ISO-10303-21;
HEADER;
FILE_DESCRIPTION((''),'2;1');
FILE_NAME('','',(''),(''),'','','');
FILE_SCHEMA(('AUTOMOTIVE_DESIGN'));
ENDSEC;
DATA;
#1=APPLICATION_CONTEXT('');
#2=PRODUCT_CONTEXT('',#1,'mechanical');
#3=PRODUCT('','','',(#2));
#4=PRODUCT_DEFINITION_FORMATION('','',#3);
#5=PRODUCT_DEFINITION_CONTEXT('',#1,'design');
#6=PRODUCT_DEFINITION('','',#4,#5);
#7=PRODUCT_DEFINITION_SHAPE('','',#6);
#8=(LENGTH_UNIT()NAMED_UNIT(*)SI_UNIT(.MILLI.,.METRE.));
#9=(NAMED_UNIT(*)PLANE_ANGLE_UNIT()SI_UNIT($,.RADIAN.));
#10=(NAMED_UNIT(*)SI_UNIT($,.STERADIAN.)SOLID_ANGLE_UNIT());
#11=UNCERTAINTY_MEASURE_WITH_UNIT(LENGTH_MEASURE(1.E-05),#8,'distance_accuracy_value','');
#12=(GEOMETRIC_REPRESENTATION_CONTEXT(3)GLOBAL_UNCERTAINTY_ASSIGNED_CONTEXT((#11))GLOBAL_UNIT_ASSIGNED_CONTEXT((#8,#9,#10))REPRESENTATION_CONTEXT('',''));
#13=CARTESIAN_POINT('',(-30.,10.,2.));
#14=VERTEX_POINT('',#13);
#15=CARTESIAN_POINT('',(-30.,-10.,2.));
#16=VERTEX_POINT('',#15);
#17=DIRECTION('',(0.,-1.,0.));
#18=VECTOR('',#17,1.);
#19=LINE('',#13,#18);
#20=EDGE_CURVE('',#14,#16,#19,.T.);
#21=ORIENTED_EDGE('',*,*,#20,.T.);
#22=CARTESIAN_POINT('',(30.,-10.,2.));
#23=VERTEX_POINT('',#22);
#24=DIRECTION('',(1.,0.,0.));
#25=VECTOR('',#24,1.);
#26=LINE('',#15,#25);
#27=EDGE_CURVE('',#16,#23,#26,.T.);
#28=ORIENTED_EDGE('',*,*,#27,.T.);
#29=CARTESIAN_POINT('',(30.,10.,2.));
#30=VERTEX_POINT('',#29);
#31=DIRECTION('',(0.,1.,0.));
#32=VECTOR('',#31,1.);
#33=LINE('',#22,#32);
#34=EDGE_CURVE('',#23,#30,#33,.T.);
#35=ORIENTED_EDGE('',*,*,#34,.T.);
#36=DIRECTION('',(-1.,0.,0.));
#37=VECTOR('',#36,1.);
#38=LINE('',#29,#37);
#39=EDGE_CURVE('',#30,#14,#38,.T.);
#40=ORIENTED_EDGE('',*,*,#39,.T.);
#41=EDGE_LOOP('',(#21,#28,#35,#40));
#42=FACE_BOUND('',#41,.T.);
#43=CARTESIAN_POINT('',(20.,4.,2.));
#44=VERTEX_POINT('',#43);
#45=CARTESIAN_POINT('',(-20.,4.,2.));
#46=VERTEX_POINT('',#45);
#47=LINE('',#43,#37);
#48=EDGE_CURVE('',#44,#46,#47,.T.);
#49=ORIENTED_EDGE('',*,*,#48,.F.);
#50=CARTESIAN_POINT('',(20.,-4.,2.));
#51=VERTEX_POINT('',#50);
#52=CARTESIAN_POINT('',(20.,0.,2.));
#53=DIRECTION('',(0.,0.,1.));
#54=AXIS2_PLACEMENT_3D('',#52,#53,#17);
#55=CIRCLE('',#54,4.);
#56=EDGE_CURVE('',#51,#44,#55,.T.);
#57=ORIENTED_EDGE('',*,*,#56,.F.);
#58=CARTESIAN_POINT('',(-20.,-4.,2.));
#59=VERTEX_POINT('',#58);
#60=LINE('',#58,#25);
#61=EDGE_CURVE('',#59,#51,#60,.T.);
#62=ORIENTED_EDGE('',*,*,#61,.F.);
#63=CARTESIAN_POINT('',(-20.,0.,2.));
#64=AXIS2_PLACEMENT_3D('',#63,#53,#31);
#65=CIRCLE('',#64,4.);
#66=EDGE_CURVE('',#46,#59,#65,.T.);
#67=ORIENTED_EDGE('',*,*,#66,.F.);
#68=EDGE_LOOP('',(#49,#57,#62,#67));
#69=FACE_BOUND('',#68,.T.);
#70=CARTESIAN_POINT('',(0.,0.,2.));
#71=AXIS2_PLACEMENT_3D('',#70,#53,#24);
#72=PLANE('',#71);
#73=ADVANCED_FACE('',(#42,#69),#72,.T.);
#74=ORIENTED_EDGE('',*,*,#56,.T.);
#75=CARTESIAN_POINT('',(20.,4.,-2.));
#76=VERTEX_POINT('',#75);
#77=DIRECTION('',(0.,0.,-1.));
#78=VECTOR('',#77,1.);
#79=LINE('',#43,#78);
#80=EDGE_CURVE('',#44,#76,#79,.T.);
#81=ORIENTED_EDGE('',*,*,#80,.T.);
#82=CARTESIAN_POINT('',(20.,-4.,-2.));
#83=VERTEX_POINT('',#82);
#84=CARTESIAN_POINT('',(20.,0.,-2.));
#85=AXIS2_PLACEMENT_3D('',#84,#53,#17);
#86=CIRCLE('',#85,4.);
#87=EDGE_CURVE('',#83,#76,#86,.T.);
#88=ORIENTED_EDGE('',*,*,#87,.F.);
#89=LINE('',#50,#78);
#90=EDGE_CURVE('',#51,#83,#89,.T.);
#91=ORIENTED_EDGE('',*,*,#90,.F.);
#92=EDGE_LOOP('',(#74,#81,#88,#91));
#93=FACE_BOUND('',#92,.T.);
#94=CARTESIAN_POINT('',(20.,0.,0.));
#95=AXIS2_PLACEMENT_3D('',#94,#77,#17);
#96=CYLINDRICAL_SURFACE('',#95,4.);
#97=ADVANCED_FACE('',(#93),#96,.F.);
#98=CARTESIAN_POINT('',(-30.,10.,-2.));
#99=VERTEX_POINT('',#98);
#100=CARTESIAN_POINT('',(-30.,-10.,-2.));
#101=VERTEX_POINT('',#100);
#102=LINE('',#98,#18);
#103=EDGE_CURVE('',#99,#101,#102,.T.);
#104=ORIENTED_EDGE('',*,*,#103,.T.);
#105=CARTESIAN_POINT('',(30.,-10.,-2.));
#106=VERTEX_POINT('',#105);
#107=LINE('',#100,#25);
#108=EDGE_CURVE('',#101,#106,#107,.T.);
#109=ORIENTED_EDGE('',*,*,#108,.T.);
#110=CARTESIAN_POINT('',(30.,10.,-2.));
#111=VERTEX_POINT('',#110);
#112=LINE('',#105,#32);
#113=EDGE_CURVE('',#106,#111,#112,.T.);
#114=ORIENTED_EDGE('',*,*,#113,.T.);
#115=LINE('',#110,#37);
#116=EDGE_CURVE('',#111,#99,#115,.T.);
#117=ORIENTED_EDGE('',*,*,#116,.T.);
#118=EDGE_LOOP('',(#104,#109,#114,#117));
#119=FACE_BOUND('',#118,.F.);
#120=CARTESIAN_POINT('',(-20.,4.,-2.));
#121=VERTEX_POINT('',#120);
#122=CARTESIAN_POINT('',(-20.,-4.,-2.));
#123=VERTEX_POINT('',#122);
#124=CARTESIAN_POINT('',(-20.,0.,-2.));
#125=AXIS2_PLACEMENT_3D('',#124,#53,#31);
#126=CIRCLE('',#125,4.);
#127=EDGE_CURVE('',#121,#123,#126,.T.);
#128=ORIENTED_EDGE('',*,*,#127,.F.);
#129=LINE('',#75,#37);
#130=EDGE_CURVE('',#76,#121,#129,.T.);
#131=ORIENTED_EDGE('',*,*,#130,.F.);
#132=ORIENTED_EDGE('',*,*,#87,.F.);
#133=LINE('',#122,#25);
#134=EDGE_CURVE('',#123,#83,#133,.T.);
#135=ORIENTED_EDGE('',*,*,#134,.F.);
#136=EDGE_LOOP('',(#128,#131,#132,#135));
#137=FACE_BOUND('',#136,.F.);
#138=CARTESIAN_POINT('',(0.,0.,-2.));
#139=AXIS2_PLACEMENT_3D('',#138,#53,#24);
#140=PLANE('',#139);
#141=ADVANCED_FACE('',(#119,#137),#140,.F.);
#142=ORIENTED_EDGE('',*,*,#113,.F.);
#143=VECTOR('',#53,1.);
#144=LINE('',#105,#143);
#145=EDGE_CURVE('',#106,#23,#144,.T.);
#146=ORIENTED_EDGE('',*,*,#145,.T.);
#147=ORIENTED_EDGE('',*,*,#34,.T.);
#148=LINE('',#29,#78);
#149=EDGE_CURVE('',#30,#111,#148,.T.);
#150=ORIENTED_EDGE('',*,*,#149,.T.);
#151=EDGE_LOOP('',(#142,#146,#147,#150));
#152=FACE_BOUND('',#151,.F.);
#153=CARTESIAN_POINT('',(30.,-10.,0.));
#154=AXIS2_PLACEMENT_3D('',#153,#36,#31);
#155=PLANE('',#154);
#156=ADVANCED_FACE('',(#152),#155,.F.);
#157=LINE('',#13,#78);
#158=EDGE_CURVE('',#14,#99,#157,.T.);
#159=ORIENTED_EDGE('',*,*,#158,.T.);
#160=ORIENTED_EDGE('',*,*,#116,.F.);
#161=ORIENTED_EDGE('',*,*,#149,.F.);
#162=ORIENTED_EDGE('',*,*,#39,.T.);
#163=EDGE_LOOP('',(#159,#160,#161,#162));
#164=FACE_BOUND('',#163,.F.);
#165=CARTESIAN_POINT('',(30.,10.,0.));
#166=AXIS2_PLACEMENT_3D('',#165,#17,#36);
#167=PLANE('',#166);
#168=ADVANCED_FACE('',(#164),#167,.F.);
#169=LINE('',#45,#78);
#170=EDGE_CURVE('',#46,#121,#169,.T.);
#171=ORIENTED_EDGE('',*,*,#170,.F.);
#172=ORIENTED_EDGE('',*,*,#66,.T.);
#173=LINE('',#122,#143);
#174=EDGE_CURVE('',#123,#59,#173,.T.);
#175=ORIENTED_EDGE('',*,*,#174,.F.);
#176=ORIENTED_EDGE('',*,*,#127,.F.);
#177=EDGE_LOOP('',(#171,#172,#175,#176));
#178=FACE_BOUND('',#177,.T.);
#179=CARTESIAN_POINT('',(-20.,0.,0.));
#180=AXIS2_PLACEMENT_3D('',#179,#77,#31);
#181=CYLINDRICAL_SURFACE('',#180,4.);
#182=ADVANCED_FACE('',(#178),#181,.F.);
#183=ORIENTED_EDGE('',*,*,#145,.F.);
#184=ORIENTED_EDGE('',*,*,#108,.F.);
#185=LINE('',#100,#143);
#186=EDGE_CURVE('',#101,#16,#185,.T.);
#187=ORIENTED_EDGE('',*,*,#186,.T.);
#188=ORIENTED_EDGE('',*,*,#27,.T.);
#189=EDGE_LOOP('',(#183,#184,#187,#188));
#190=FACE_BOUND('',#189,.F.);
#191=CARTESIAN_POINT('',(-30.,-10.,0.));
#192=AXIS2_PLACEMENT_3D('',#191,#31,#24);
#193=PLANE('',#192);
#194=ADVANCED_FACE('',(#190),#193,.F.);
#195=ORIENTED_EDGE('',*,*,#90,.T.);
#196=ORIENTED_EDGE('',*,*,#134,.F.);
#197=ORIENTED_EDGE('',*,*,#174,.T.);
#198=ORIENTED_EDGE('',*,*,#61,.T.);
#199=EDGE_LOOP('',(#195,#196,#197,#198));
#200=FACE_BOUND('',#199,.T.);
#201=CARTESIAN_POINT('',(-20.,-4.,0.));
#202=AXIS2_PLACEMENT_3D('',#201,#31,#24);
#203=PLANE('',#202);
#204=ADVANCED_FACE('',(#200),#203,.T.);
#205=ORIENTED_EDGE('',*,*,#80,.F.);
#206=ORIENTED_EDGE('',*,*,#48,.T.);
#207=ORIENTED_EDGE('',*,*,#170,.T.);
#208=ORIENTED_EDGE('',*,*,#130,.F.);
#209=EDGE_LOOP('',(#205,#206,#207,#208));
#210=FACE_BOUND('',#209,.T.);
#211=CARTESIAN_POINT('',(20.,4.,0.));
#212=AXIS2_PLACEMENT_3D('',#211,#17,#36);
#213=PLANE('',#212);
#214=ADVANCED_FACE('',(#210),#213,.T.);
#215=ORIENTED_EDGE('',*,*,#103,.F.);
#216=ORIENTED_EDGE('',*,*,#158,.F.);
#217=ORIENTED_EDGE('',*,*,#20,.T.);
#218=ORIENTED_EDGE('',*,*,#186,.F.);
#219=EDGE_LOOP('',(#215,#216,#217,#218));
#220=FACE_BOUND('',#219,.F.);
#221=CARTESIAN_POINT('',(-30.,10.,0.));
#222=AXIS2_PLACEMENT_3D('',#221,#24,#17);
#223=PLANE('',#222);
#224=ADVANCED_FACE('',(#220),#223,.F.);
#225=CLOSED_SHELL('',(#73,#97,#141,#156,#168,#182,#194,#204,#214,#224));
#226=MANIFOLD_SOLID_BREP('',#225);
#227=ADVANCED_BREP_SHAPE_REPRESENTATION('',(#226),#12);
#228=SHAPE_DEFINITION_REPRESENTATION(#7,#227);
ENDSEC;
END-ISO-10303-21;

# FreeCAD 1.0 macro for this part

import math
import FreeCAD as App
import Part
import Sketcher

doc = App.newDocument("Part")
body = doc.addObject("PartDesign::Body", "Body")

# Sketch on XY plane
sketch1 = body.newObject("Sketcher::SketchObject", "Sketch")
sketch1.AttachmentSupport = (doc.getObject("XY_Plane"), [""])
sketch1.MapMode = "FlatFace"
sketch1.addGeometry([
    Part.LineSegment(App.Vector(-30, 10, 0), App.Vector(-30, -10, 0)),  # 0
    Part.LineSegment(App.Vector(-30, -10, 0), App.Vector(30, -10, 0)),  # 1
    Part.LineSegment(App.Vector(30, -10, 0), App.Vector(30, 10, 0)),  # 2
    Part.LineSegment(App.Vector(30, 10, 0), App.Vector(-30, 10, 0)),  # 3
    Part.LineSegment(App.Vector(20, -4, 0), App.Vector(-20, -4, 0)),  # 4
    Part.ArcOfCircle(Part.Circle(App.Vector(-20, 0, 0), App.Vector(0, 0, 1), 4), math.radians(90), math.radians(270)),  # 5
    Part.LineSegment(App.Vector(-20, 4, 0), App.Vector(20, 4, 0)),  # 6
    Part.ArcOfCircle(Part.Circle(App.Vector(20, 0, 0), App.Vector(0, 0, 1), 4), math.radians(-90), math.radians(90)),  # 7
], False)
sketch1.addConstraint([
    Sketcher.Constraint("Coincident", 0, 2, 1, 1),
    Sketcher.Constraint("Coincident", 1, 2, 2, 1),
    Sketcher.Constraint("Coincident", 2, 2, 3, 1),
    Sketcher.Constraint("Coincident", 3, 2, 0, 1),
    Sketcher.Constraint("Tangent", 4, 2, 5, 2),
    Sketcher.Constraint("Tangent", 5, 1, 6, 1),
    Sketcher.Constraint("Tangent", 6, 2, 7, 2),
    Sketcher.Constraint("Tangent", 7, 1, 4, 1),
    Sketcher.Constraint("Vertical", 0),
    Sketcher.Constraint("Horizontal", 1),
    Sketcher.Constraint("Vertical", 2),
    Sketcher.Constraint("Horizontal", 3),
    Sketcher.Constraint("Horizontal", 4),
    Sketcher.Constraint("Horizontal", 6),
    Sketcher.Constraint("Symmetric", 5, 3, 7, 3, -1, 1),
    Sketcher.Constraint("Symmetric", 0, 2, 2, 2, -1, 1),
    Sketcher.Constraint("Radius", 5, 4.0),
    Sketcher.Constraint("DistanceX", 1, 1, 1, 2, 60.0),
    Sketcher.Constraint("DistanceX", 4, 2, 4, 1, 40.0),
    Sketcher.Constraint("DistanceY", 0, 2, 0, 1, 20.0),
])
pad1 = body.newObject("PartDesign::Pad", "Pad")
pad1.Profile = sketch1
pad1.Length = 4
pad1.Midplane = True

doc.recompute()
